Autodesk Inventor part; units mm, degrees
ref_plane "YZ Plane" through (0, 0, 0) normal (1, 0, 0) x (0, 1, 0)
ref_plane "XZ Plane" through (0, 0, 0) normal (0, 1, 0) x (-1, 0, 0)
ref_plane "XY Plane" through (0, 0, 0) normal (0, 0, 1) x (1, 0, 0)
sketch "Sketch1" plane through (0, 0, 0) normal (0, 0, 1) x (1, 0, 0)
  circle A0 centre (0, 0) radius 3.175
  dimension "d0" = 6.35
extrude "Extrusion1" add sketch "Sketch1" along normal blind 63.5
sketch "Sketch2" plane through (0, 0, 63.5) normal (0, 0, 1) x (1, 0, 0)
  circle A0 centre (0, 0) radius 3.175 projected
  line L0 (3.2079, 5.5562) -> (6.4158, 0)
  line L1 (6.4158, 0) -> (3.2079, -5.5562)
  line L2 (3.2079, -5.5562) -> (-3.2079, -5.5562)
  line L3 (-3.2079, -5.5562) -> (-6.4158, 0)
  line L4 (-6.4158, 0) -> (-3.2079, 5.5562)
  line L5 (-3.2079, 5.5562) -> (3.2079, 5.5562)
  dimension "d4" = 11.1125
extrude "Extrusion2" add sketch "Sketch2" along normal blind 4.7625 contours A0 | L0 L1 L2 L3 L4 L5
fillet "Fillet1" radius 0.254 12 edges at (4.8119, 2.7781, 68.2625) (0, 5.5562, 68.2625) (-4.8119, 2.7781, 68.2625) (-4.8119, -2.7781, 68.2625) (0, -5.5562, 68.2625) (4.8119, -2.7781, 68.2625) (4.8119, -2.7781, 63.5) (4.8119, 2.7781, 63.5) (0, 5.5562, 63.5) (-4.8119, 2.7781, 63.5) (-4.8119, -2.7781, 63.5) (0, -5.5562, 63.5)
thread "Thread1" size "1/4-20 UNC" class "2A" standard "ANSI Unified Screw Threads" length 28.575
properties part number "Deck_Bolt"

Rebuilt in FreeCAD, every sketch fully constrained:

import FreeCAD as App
import Part
import Sketcher
Q = App.Units.Quantity


def edges_at(feature, points):
    """Names of the edges that pass closest to the given points."""
    edges = feature.Shape.Edges
    near = lambda p: min(range(len(edges)), key=lambda i: edges[i].distToShape(Part.Vertex(*p))[0])
    return sorted({f"Edge{near(p) + 1}" for p in points})

doc = App.newDocument("Part")
params = doc.addObject("Spreadsheet::Sheet", "Params")
for row, (alias, value) in enumerate([
    ("sketch1_diameter", "0.25 in"),
    ("pad1_length", "2.5 in"),
    ("pad2_length", "0.1875 in"),
    ("fillet_radius", "0.01 in"),
], start=1):
    params.set(f"A{row}", alias)
    params.set(f"B{row}", "=" + value)
    params.setAlias(f"B{row}", alias)

body = doc.addObject("PartDesign::Body", "Body")

# Sketch on XY plane
sketch1 = body.newObject("Sketcher::SketchObject", "Sketch")
sketch1.AttachmentSupport = (doc.getObject("XY_Plane"), [""])
sketch1.MapMode = "FlatFace"
sketch1.addGeometry(Part.Circle(App.Vector(0, 0, 0), App.Vector(0, 0, 1), 3.2), False)
sketch1.addConstraint(Sketcher.Constraint("Coincident", 0, 3, -1, 1))
sketch1.addConstraint(Sketcher.Constraint("Diameter", 0, Q("0.25 in")))
sketch1.setExpression("Constraints[1]", "Params.sketch1_diameter")
pad1 = body.newObject("PartDesign::Pad", "Pad")
pad1.Profile = sketch1
pad1.setExpression("Length", "Params.pad1_length")

# Sketch on XY plane
sketch2 = body.newObject("Sketcher::SketchObject", "Sketch001")
sketch2.AttachmentSupport = (doc.getObject("XY_Plane"), [""])
sketch2.MapMode = "FlatFace"
sketch2.AttachmentOffset = App.Placement(App.Vector(0, 0, 2.5 * 25.4), App.Rotation())
sketch2.addGeometry(Part.LineSegment(App.Vector(6, 0, 0), App.Vector(3, 6, 0)), False)
sketch2.addGeometry(Part.LineSegment(App.Vector(3, 6, 0), App.Vector(-3, 6, 0)), False)
sketch2.addGeometry(Part.LineSegment(App.Vector(-3, 6, 0), App.Vector(-6, 0, 0)), False)
sketch2.addGeometry(Part.LineSegment(App.Vector(-6, 0, 0), App.Vector(-3, -6, 0)), False)
sketch2.addGeometry(Part.LineSegment(App.Vector(-3, -6, 0), App.Vector(3, -6, 0)), False)
sketch2.addGeometry(Part.LineSegment(App.Vector(3, -6, 0), App.Vector(6, 0, 0)), False)
sketch2.addConstraint(Sketcher.Constraint("Coincident", 0, 2, 1, 1))
sketch2.addConstraint(Sketcher.Constraint("Coincident", 1, 2, 2, 1))
sketch2.addConstraint(Sketcher.Constraint("Coincident", 2, 2, 3, 1))
sketch2.addConstraint(Sketcher.Constraint("Coincident", 3, 2, 4, 1))
sketch2.addConstraint(Sketcher.Constraint("Coincident", 4, 2, 5, 1))
sketch2.addConstraint(Sketcher.Constraint("Coincident", 5, 2, 0, 1))
sketch2.addConstraint(Sketcher.Constraint("Horizontal", 1))
sketch2.addConstraint(Sketcher.Constraint("Horizontal", 4))
sketch2.addConstraint(Sketcher.Constraint("Symmetric", 0, 2, 3, 2, -1, 1))
sketch2.addConstraint(Sketcher.Constraint("Symmetric", 2, 2, 5, 2, -1, 1))
sketch2.addConstraint(Sketcher.Constraint("PointOnObject", 2, 2, -1))
sketch2.addConstraint(Sketcher.Constraint("Parallel", 2, 5))
sketch2.addConstraint(Sketcher.Constraint("Vertical", 1, 2, 3, 2))
sketch2.addConstraint(Sketcher.Constraint("Angle", 0, Q("120.0002 deg")))
sketch2.addConstraint(Sketcher.Constraint("DistanceY", 3, 2, 1, 2, Q("0.4375 in")))
sketch2.addConstraint(Sketcher.Constraint("DistanceX", 1, 2, 1, 1, Q("0.2526 in")))
pad2 = body.newObject("PartDesign::Pad", "Pad001")
pad2.Profile = sketch2
pad2.setExpression("Length", "Params.pad2_length")
doc.recompute()

fillet = body.newObject("PartDesign::Fillet", "Fillet")
fillet.Base = (pad2, edges_at(pad2, [
    (4.812, 2.778, 68.263),
    (0, 5.556, 68.263),
    (-4.812, 2.778, 68.263),
    (-4.812, -2.778, 68.263),
    (0, -5.556, 68.263),
    (4.812, -2.778, 68.263),
    (4.812, -2.778, 63.5),
    (4.812, 2.778, 63.5),
    (0, 5.556, 63.5),
    (-4.812, 2.778, 63.5),
    (-4.812, -2.778, 63.5),
    (0, -5.556, 63.5),
]))
fillet.setExpression("Radius", "Params.fillet_radius")

doc.recompute()
